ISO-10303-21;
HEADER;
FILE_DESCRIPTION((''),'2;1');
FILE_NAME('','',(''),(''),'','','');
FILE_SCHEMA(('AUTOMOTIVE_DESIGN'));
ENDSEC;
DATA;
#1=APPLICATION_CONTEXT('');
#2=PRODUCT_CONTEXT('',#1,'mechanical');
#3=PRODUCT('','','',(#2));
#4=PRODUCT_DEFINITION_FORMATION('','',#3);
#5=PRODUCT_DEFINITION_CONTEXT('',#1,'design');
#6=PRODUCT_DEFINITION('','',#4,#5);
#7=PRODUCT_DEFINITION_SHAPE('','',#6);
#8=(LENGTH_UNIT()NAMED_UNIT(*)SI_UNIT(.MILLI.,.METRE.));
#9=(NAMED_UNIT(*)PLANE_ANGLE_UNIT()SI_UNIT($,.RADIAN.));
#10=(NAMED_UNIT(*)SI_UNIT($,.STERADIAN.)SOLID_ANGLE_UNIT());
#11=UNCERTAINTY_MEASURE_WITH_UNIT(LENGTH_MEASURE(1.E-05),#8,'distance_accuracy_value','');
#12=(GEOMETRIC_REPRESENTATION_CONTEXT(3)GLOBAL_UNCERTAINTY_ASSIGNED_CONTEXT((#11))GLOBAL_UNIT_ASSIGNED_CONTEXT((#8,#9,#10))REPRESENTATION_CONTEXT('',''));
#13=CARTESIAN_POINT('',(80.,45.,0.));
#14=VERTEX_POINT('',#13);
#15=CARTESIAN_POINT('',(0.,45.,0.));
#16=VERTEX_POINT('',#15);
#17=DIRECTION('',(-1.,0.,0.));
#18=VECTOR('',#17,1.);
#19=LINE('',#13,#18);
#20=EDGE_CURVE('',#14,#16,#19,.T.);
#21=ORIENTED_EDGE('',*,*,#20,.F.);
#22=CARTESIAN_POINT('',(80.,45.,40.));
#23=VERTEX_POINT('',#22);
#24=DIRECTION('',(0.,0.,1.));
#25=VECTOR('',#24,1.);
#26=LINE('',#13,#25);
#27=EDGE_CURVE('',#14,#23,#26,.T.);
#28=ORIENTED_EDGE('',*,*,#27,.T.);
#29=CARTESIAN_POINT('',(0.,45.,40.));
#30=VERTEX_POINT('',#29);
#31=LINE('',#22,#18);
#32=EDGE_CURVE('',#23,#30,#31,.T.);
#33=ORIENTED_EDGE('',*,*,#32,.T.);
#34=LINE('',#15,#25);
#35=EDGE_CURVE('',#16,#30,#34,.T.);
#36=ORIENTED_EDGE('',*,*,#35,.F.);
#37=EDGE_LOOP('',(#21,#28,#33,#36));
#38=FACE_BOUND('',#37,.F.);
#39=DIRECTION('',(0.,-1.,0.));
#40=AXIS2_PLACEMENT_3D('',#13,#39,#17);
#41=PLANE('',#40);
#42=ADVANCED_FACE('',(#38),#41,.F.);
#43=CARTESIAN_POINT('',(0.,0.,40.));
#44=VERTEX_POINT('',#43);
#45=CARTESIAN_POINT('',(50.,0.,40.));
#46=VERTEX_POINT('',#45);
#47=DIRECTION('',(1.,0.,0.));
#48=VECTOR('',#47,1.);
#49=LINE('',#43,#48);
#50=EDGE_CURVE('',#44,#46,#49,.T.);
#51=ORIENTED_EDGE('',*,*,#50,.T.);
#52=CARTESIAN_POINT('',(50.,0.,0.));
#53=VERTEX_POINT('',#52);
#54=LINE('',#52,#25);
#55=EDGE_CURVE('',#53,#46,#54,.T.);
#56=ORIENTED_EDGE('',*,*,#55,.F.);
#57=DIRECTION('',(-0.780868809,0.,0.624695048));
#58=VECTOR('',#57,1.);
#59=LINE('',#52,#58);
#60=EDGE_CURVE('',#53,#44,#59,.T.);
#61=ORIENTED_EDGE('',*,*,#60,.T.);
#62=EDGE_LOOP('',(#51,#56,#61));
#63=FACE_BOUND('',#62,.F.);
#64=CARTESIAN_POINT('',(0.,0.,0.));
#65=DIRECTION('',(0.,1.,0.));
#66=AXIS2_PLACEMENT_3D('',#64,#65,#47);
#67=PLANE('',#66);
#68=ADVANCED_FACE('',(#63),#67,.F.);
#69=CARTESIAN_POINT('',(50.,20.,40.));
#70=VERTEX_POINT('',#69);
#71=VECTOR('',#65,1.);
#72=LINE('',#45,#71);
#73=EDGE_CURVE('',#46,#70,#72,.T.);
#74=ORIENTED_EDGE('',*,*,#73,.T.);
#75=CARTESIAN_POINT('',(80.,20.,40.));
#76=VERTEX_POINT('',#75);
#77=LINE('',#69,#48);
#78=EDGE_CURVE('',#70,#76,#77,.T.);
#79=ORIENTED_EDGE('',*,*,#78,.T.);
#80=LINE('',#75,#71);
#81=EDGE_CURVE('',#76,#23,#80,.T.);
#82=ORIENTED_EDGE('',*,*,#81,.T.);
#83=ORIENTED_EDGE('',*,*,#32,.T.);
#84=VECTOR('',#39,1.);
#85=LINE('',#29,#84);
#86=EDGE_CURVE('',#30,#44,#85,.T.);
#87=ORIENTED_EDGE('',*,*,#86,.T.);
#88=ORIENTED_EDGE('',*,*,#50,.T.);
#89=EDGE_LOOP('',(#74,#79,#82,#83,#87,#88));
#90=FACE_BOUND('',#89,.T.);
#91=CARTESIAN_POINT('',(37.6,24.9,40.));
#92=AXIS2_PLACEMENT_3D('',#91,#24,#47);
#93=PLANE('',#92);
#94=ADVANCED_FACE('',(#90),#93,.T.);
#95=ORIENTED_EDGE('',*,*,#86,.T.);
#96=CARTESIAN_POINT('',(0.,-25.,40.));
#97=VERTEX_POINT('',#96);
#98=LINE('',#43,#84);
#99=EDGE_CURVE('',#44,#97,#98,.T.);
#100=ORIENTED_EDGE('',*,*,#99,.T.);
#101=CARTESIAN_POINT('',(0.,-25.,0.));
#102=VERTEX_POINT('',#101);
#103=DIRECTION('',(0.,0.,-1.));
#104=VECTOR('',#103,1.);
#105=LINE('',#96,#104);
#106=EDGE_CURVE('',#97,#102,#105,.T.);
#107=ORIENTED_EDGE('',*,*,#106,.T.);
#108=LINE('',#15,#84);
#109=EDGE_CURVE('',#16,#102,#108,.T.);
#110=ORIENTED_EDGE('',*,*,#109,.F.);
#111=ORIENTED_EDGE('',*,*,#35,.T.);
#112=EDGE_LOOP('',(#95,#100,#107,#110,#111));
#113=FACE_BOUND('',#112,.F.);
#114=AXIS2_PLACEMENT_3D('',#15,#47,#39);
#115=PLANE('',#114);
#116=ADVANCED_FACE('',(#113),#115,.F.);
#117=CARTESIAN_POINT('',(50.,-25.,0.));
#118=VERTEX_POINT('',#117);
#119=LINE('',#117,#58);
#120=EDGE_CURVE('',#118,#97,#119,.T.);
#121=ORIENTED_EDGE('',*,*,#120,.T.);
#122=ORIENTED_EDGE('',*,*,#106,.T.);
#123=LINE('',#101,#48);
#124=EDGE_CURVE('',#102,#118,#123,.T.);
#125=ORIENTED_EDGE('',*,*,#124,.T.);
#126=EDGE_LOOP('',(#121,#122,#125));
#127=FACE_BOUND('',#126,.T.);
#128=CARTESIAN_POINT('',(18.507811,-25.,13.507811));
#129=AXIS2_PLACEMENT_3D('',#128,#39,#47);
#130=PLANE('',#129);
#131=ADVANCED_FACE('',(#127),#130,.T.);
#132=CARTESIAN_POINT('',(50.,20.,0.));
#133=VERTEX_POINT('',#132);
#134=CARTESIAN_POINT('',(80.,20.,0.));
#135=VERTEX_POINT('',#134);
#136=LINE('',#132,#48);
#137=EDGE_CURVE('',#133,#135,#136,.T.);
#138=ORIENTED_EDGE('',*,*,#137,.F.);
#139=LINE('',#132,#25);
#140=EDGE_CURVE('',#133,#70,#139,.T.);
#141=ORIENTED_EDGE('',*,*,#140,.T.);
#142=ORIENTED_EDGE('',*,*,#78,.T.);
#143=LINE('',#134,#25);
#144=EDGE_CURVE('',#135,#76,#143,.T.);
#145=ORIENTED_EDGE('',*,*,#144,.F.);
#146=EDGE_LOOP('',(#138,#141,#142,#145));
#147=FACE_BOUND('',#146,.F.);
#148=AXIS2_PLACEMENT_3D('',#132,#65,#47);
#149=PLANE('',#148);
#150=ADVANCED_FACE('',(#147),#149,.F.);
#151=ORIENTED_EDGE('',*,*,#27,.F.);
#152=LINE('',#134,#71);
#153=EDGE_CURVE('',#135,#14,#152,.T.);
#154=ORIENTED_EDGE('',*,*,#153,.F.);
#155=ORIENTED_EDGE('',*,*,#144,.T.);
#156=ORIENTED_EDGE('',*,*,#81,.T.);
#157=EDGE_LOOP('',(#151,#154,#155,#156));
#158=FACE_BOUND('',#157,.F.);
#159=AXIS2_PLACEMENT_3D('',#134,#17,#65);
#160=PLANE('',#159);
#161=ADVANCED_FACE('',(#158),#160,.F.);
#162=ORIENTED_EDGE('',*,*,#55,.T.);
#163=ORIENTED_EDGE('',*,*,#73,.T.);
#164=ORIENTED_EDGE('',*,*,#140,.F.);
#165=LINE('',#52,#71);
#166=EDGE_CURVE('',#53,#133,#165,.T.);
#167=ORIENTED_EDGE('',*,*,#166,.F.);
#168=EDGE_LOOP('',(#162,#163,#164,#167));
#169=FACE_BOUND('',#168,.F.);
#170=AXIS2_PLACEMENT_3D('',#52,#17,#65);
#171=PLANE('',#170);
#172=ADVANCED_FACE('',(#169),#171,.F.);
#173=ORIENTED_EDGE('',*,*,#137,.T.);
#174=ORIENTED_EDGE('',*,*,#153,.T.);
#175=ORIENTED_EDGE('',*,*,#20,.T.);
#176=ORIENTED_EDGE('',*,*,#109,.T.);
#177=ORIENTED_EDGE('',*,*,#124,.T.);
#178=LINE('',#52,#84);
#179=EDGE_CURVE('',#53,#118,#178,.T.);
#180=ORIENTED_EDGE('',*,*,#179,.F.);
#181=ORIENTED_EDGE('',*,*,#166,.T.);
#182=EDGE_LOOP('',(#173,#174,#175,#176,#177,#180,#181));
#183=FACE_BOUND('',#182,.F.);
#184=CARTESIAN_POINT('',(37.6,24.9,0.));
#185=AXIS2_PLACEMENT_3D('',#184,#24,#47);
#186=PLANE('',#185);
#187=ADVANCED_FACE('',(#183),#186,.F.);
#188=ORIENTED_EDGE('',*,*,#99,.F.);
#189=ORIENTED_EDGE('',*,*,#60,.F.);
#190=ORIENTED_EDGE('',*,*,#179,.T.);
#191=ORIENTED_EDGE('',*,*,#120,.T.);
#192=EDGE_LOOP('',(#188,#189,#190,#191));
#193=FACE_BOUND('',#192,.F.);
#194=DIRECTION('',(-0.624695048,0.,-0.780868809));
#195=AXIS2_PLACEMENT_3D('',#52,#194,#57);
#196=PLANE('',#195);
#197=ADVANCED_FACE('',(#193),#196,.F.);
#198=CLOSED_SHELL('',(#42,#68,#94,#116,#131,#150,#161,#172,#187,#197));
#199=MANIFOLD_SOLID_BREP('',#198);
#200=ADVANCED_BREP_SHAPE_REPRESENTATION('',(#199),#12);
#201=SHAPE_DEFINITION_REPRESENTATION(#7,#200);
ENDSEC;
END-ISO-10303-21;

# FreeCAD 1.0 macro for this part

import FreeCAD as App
import Part
import Sketcher
from FreeCAD import Vector
Q = App.Units.Quantity


def add_polygon(sketch, points):
    """Adds a closed chain of lines whose ends are joined by coincident constraints."""
    first, n = sketch.GeometryCount, len(points)
    for a, b in zip(points, points[1:] + points[:1]):
        sketch.addGeometry(Part.LineSegment(App.Vector(*a, 0), App.Vector(*b, 0)), False)
    for i in range(n):
        sketch.addConstraint(Sketcher.Constraint("Coincident", first + i, 2, first + (i + 1) % n, 1))

doc = App.newDocument("Part")
body = doc.addObject("PartDesign::Body", "Body")

# Sketch on XZ plane
sketch1 = body.newObject("Sketcher::SketchObject", "Sketch")
sketch1.AttachmentSupport = (doc.getObject("XZ_Plane"), [""])
sketch1.MapMode = "FlatFace"
add_polygon(sketch1, [(0, 40), (0, 0), (50, 0)])  # lines 0-2
sketch1.addConstraint([
    Sketcher.Constraint("Vertical", 0),
    Sketcher.Constraint("Horizontal", 1),
    Sketcher.Constraint("Coincident", 0, 2, -1, 1),
    Sketcher.Constraint("DistanceX", 1, 1, 1, 2, Q("50 mm")),
    Sketcher.Constraint("DistanceY", 0, 2, 0, 1, Q("40 mm")),
])
pad1 = body.newObject("PartDesign::Pad", "Pad")
pad1.Profile = sketch1
pad1.Length = 25

# Sketch on XY plane
sketch2 = body.newObject("Sketcher::SketchObject", "Sketch001")
sketch2.AttachmentSupport = (doc.getObject("XY_Plane"), [""])
sketch2.MapMode = "FlatFace"
add_polygon(sketch2, [(0, 45), (0, 0), (50, 0), (50, 20), (80, 20), (80, 45)])  # lines 0-5
sketch2.addConstraint([
    Sketcher.Constraint("Vertical", 0),
    Sketcher.Constraint("Horizontal", 1),
    Sketcher.Constraint("Vertical", 2),
    Sketcher.Constraint("Horizontal", 3),
    Sketcher.Constraint("Vertical", 4),
    Sketcher.Constraint("Horizontal", 5),
    Sketcher.Constraint("Coincident", 0, 2, -1, 1),
    Sketcher.Constraint("DistanceX", 1, 1, 1, 2, Q("50 mm")),
    Sketcher.Constraint("DistanceX", 3, 1, 3, 2, Q("30 mm")),
    Sketcher.Constraint("DistanceY", 0, 2, 0, 1, Q("45 mm")),
    Sketcher.Constraint("DistanceY", 2, 1, 2, 2, Q("20 mm")),
])
pad2 = body.newObject("PartDesign::Pad", "Pad001")
pad2.Profile = sketch2
pad2.Length = 40

doc.recompute()
